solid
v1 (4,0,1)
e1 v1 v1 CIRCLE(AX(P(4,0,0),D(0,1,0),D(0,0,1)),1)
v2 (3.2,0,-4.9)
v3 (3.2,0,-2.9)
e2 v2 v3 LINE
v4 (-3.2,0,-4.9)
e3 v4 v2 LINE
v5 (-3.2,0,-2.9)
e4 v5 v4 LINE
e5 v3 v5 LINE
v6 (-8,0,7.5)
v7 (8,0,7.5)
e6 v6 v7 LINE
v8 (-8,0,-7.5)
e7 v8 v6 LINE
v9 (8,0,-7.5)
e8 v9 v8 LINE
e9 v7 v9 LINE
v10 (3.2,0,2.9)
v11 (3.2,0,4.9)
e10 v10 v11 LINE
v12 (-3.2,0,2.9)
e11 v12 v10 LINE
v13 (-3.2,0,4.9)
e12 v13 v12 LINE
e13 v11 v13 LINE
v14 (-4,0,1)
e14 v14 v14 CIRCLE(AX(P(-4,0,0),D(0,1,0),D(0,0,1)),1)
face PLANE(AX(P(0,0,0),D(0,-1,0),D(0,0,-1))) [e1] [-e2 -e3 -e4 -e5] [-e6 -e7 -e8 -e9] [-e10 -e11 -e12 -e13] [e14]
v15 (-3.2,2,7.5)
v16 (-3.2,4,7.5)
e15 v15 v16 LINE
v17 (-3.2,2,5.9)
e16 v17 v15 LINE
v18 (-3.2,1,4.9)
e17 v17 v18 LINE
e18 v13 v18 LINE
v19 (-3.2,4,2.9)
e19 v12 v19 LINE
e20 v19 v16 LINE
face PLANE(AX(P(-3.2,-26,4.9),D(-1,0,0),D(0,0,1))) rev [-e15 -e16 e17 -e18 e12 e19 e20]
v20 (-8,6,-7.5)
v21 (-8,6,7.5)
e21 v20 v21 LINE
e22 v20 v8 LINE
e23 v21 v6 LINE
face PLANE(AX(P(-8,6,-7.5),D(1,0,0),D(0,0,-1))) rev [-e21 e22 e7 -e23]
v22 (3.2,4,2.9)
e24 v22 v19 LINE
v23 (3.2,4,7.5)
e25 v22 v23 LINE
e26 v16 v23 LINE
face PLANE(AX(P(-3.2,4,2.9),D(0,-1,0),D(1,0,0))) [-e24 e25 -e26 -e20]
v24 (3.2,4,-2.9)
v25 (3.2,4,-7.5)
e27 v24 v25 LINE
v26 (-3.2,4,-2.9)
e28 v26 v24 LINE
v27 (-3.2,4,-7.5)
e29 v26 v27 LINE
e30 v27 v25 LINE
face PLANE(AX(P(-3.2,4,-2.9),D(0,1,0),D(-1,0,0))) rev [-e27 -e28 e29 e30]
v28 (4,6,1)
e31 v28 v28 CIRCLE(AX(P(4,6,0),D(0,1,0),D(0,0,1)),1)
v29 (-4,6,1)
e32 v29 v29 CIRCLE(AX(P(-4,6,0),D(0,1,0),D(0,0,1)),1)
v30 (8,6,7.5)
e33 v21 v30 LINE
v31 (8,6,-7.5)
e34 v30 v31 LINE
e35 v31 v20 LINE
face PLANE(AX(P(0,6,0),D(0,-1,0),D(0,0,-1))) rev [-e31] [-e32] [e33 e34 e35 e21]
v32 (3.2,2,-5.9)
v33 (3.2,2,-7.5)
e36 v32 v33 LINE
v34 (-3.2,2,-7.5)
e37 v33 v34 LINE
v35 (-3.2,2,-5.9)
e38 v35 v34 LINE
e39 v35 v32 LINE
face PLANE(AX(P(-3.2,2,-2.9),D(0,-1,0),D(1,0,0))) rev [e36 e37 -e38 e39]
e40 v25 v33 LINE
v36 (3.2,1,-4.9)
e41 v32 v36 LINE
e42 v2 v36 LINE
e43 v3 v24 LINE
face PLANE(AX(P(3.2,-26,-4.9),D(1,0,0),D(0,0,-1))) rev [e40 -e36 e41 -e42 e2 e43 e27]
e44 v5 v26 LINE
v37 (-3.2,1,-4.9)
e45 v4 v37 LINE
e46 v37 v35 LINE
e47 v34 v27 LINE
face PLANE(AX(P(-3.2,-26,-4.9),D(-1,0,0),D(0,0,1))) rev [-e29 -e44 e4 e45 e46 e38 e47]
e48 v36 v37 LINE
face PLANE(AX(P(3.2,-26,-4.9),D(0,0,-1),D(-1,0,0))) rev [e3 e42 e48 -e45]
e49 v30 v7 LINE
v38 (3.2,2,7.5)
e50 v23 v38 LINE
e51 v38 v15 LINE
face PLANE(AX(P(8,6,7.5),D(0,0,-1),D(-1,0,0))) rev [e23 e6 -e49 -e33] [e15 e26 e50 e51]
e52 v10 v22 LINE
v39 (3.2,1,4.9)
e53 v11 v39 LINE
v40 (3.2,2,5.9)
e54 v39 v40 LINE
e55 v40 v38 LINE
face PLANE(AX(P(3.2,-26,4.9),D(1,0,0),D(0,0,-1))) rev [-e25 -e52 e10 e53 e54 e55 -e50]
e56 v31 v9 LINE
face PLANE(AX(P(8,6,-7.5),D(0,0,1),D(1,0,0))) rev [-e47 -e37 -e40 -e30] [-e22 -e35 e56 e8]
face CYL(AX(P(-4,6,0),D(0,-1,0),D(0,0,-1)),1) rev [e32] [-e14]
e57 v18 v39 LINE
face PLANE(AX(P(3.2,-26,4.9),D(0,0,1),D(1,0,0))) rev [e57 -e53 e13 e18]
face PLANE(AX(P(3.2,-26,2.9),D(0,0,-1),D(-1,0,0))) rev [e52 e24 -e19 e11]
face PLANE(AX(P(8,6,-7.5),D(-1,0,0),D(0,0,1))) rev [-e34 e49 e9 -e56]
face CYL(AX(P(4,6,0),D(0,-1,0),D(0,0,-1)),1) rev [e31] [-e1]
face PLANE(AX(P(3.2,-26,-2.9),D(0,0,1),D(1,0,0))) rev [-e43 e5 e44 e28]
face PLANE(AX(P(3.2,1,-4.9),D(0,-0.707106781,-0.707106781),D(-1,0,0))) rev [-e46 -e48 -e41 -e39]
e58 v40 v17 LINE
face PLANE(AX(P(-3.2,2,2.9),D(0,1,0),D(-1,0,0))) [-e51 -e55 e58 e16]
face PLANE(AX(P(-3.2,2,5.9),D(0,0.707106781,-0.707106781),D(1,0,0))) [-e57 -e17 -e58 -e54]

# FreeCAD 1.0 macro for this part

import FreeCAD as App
import Part
import Sketcher


def edges_at(feature, points):
    """Names of the edges that pass closest to the given points."""
    edges = feature.Shape.Edges
    near = lambda p: min(range(len(edges)), key=lambda i: edges[i].distToShape(Part.Vertex(*p))[0])
    return sorted({f"Edge{near(p) + 1}" for p in points})


def add_polygon(sketch, points):
    """Adds a closed chain of lines whose ends are joined by coincident constraints."""
    first, n = sketch.GeometryCount, len(points)
    for a, b in zip(points, points[1:] + points[:1]):
        sketch.addGeometry(Part.LineSegment(App.Vector(*a, 0), App.Vector(*b, 0)), False)
    for i in range(n):
        sketch.addConstraint(Sketcher.Constraint("Coincident", first + i, 2, first + (i + 1) % n, 1))

doc = App.newDocument("Part")
body = doc.addObject("PartDesign::Body", "Body")

# Sketch on XZ plane
sketch1 = doc.addObject("Sketcher::SketchObject", "Sketch")
body.addObject(sketch1)
sketch1.AttachmentSupport = (doc.XZ_Plane, [""])
sketch1.MapMode = "FlatFace"
add_polygon(sketch1, [(-8, -7.5), (-8, 7.5), (8, 7.5), (8, -7.5)])  # lines 0-3
sketch1.addGeometry(Part.Circle(App.Vector(-4, 0, 0), App.Vector(0, 0, 1), 1), False)  # 4
sketch1.addGeometry(Part.Circle(App.Vector(4, 0, 0), App.Vector(0, 0, 1), 1), False)  # 5
sketch1.addConstraint(Sketcher.Constraint("Vertical", 0))
sketch1.addConstraint(Sketcher.Constraint("Horizontal", 1))
sketch1.addConstraint(Sketcher.Constraint("Vertical", 2))
sketch1.addConstraint(Sketcher.Constraint("Horizontal", 3))
sketch1.addConstraint(Sketcher.Constraint("Equal", 4, 5))
sketch1.addConstraint(Sketcher.Constraint("Symmetric", 4, 3, 5, 3, -1, 1))
sketch1.addConstraint(Sketcher.Constraint("Symmetric", 0, 2, 2, 2, -1, 1))
sketch1.addConstraint(Sketcher.Constraint("PointOnObject", 4, 3, -1))
sketch1.addConstraint(Sketcher.Constraint("Diameter", 4, 2.0))
sketch1.addConstraint(Sketcher.Constraint("DistanceX", 1, 1, 1, 2, 16.0))
sketch1.addConstraint(Sketcher.Constraint("DistanceY", 0, 1, 0, 2, 15.0))
sketch1.addConstraint(Sketcher.Constraint("DistanceX", 4, 3, -1, 1, 4.0))
pad1 = doc.addObject("PartDesign::Pad", "Pad")
body.addObject(pad1)
pad1.Profile = sketch1
pad1.Length = 6
pad1.Reversed = True

# Sketch on XZ plane
sketch2 = doc.addObject("Sketcher::SketchObject", "Sketch001")
body.addObject(sketch2)
sketch2.AttachmentSupport = (doc.XZ_Plane, [""])
sketch2.MapMode = "FlatFace"
sketch2.AttachmentOffset = App.Placement(App.Vector(0, 0, -6), App.Rotation())
add_polygon(sketch2, [(-3.2, 2.9), (-3.2, 4.9), (3.2, 4.9), (3.2, 2.9)])  # lines 0-3
add_polygon(sketch2, [(-3.2, -4.9), (-3.2, -2.9), (3.2, -2.9), (3.2, -4.9)])  # lines 4-7
sketch2.addConstraint(Sketcher.Constraint("Vertical", 0))
sketch2.addConstraint(Sketcher.Constraint("Horizontal", 1))
sketch2.addConstraint(Sketcher.Constraint("Vertical", 2))
sketch2.addConstraint(Sketcher.Constraint("Horizontal", 3))
sketch2.addConstraint(Sketcher.Constraint("Vertical", 4))
sketch2.addConstraint(Sketcher.Constraint("Horizontal", 5))
sketch2.addConstraint(Sketcher.Constraint("Vertical", 6))
sketch2.addConstraint(Sketcher.Constraint("Horizontal", 7))
sketch2.addConstraint(Sketcher.Constraint("Symmetric", 2, 2, 4, 2, -1, 1))
sketch2.addConstraint(Sketcher.Constraint("Symmetric", 0, 2, 6, 2, -1, 1))
sketch2.addConstraint(Sketcher.Constraint("Vertical", 3, 2, 4, 2))
sketch2.addConstraint(Sketcher.Constraint("DistanceY", 0, 1, 0, 2, 2.0))
sketch2.addConstraint(Sketcher.Constraint("DistanceX", 1, 1, 1, 2, 6.4))
sketch2.addConstraint(Sketcher.Constraint("DistanceY", -1, 1, 0, 2, 4.9))
pocket1 = doc.addObject("PartDesign::Pocket", "Pocket")
body.addObject(pocket1)
pocket1.Profile = sketch2
pocket1.Length = 32
pocket1.Reversed = True

# Sketch on XY plane
sketch3 = doc.addObject("Sketcher::SketchObject", "Sketch002")
body.addObject(sketch3)
sketch3.AttachmentSupport = (doc.XY_Plane, [""])
sketch3.MapMode = "FlatFace"
sketch3.AttachmentOffset = App.Placement(App.Vector(0, 0, 7.5), App.Rotation())
add_polygon(sketch3, [(3.2, 4), (3.2, 2), (-3.2, 2), (-3.2, 4)])  # lines 0-3
sketch3.addConstraint(Sketcher.Constraint("Vertical", 0))
sketch3.addConstraint(Sketcher.Constraint("Horizontal", 1))
sketch3.addConstraint(Sketcher.Constraint("Vertical", 2))
sketch3.addConstraint(Sketcher.Constraint("Horizontal", 3))
sketch3.addConstraint(Sketcher.Constraint("DistanceY", 0, 2, 0, 1, 2.0))
sketch3.addConstraint(Sketcher.Constraint("DistanceX", 1, 2, 1, 1, 6.4))
sketch3.addConstraint(Sketcher.Constraint("DistanceY", -1, 1, 0, 2, 2.0))
sketch3.addConstraint(Sketcher.Constraint("DistanceX", -1, 1, 0, 2, 3.2))
pocket2 = doc.addObject("PartDesign::Pocket", "Pocket001")
body.addObject(pocket2)
pocket2.Profile = sketch3
pocket2.Length = 4.6
doc.recompute()

mirrored = doc.addObject("PartDesign::Mirrored", "Mirrored")
body.addObject(mirrored)
mirrored.Originals = [pocket1, pocket2]
mirrored.MirrorPlane = (doc.XY_Plane, [""])
body.Tip = mirrored

# Sketch on XZ plane
sketch4 = doc.addObject("Sketcher::SketchObject", "Sketch003")
body.addObject(sketch4)
sketch4.AttachmentSupport = (doc.XZ_Plane, [""])
sketch4.MapMode = "FlatFace"
sketch4.AttachmentOffset = App.Placement(App.Vector(0, 0, -6), App.Rotation())
add_polygon(sketch4, [(-3.2, -4.9), (-3.2, -2.9), (3.2, -2.9), (3.2, -4.9)])  # lines 0-3
add_polygon(sketch4, [(-3.2, 2.9), (-3.2, 4.9), (3.2, 4.9), (3.2, 2.9)])  # lines 4-7
sketch4.addConstraint(Sketcher.Constraint("Vertical", 0))
sketch4.addConstraint(Sketcher.Constraint("Horizontal", 1))
sketch4.addConstraint(Sketcher.Constraint("Vertical", 2))
sketch4.addConstraint(Sketcher.Constraint("Horizontal", 3))
sketch4.addConstraint(Sketcher.Constraint("Vertical", 4))
sketch4.addConstraint(Sketcher.Constraint("Horizontal", 5))
sketch4.addConstraint(Sketcher.Constraint("Vertical", 6))
sketch4.addConstraint(Sketcher.Constraint("Horizontal", 7))
sketch4.addConstraint(Sketcher.Constraint("Symmetric", 2, 2, 4, 2, -1, 1))
sketch4.addConstraint(Sketcher.Constraint("Symmetric", 0, 2, 6, 2, -1, 1))
sketch4.addConstraint(Sketcher.Constraint("Vertical", 3, 2, 4, 2))
sketch4.addConstraint(Sketcher.Constraint("DistanceY", 0, 1, 0, 2, 2.0))
sketch4.addConstraint(Sketcher.Constraint("DistanceX", 1, 1, 1, 2, 6.4))
sketch4.addConstraint(Sketcher.Constraint("DistanceY", 0, 2, -1, 1, 2.9))
pad2 = doc.addObject("PartDesign::Pad", "Pad001")
body.addObject(pad2)
pad2.Profile = sketch4
pad2.Length = 2
doc.recompute()

chamfer = doc.addObject("PartDesign::Chamfer", "Chamfer")
body.addObject(chamfer)
chamfer.Base = (pad2, edges_at(pad2, [(0, 2, -4.9), (0, 2, 4.9)]))
chamfer.Size = 1

doc.recompute()
